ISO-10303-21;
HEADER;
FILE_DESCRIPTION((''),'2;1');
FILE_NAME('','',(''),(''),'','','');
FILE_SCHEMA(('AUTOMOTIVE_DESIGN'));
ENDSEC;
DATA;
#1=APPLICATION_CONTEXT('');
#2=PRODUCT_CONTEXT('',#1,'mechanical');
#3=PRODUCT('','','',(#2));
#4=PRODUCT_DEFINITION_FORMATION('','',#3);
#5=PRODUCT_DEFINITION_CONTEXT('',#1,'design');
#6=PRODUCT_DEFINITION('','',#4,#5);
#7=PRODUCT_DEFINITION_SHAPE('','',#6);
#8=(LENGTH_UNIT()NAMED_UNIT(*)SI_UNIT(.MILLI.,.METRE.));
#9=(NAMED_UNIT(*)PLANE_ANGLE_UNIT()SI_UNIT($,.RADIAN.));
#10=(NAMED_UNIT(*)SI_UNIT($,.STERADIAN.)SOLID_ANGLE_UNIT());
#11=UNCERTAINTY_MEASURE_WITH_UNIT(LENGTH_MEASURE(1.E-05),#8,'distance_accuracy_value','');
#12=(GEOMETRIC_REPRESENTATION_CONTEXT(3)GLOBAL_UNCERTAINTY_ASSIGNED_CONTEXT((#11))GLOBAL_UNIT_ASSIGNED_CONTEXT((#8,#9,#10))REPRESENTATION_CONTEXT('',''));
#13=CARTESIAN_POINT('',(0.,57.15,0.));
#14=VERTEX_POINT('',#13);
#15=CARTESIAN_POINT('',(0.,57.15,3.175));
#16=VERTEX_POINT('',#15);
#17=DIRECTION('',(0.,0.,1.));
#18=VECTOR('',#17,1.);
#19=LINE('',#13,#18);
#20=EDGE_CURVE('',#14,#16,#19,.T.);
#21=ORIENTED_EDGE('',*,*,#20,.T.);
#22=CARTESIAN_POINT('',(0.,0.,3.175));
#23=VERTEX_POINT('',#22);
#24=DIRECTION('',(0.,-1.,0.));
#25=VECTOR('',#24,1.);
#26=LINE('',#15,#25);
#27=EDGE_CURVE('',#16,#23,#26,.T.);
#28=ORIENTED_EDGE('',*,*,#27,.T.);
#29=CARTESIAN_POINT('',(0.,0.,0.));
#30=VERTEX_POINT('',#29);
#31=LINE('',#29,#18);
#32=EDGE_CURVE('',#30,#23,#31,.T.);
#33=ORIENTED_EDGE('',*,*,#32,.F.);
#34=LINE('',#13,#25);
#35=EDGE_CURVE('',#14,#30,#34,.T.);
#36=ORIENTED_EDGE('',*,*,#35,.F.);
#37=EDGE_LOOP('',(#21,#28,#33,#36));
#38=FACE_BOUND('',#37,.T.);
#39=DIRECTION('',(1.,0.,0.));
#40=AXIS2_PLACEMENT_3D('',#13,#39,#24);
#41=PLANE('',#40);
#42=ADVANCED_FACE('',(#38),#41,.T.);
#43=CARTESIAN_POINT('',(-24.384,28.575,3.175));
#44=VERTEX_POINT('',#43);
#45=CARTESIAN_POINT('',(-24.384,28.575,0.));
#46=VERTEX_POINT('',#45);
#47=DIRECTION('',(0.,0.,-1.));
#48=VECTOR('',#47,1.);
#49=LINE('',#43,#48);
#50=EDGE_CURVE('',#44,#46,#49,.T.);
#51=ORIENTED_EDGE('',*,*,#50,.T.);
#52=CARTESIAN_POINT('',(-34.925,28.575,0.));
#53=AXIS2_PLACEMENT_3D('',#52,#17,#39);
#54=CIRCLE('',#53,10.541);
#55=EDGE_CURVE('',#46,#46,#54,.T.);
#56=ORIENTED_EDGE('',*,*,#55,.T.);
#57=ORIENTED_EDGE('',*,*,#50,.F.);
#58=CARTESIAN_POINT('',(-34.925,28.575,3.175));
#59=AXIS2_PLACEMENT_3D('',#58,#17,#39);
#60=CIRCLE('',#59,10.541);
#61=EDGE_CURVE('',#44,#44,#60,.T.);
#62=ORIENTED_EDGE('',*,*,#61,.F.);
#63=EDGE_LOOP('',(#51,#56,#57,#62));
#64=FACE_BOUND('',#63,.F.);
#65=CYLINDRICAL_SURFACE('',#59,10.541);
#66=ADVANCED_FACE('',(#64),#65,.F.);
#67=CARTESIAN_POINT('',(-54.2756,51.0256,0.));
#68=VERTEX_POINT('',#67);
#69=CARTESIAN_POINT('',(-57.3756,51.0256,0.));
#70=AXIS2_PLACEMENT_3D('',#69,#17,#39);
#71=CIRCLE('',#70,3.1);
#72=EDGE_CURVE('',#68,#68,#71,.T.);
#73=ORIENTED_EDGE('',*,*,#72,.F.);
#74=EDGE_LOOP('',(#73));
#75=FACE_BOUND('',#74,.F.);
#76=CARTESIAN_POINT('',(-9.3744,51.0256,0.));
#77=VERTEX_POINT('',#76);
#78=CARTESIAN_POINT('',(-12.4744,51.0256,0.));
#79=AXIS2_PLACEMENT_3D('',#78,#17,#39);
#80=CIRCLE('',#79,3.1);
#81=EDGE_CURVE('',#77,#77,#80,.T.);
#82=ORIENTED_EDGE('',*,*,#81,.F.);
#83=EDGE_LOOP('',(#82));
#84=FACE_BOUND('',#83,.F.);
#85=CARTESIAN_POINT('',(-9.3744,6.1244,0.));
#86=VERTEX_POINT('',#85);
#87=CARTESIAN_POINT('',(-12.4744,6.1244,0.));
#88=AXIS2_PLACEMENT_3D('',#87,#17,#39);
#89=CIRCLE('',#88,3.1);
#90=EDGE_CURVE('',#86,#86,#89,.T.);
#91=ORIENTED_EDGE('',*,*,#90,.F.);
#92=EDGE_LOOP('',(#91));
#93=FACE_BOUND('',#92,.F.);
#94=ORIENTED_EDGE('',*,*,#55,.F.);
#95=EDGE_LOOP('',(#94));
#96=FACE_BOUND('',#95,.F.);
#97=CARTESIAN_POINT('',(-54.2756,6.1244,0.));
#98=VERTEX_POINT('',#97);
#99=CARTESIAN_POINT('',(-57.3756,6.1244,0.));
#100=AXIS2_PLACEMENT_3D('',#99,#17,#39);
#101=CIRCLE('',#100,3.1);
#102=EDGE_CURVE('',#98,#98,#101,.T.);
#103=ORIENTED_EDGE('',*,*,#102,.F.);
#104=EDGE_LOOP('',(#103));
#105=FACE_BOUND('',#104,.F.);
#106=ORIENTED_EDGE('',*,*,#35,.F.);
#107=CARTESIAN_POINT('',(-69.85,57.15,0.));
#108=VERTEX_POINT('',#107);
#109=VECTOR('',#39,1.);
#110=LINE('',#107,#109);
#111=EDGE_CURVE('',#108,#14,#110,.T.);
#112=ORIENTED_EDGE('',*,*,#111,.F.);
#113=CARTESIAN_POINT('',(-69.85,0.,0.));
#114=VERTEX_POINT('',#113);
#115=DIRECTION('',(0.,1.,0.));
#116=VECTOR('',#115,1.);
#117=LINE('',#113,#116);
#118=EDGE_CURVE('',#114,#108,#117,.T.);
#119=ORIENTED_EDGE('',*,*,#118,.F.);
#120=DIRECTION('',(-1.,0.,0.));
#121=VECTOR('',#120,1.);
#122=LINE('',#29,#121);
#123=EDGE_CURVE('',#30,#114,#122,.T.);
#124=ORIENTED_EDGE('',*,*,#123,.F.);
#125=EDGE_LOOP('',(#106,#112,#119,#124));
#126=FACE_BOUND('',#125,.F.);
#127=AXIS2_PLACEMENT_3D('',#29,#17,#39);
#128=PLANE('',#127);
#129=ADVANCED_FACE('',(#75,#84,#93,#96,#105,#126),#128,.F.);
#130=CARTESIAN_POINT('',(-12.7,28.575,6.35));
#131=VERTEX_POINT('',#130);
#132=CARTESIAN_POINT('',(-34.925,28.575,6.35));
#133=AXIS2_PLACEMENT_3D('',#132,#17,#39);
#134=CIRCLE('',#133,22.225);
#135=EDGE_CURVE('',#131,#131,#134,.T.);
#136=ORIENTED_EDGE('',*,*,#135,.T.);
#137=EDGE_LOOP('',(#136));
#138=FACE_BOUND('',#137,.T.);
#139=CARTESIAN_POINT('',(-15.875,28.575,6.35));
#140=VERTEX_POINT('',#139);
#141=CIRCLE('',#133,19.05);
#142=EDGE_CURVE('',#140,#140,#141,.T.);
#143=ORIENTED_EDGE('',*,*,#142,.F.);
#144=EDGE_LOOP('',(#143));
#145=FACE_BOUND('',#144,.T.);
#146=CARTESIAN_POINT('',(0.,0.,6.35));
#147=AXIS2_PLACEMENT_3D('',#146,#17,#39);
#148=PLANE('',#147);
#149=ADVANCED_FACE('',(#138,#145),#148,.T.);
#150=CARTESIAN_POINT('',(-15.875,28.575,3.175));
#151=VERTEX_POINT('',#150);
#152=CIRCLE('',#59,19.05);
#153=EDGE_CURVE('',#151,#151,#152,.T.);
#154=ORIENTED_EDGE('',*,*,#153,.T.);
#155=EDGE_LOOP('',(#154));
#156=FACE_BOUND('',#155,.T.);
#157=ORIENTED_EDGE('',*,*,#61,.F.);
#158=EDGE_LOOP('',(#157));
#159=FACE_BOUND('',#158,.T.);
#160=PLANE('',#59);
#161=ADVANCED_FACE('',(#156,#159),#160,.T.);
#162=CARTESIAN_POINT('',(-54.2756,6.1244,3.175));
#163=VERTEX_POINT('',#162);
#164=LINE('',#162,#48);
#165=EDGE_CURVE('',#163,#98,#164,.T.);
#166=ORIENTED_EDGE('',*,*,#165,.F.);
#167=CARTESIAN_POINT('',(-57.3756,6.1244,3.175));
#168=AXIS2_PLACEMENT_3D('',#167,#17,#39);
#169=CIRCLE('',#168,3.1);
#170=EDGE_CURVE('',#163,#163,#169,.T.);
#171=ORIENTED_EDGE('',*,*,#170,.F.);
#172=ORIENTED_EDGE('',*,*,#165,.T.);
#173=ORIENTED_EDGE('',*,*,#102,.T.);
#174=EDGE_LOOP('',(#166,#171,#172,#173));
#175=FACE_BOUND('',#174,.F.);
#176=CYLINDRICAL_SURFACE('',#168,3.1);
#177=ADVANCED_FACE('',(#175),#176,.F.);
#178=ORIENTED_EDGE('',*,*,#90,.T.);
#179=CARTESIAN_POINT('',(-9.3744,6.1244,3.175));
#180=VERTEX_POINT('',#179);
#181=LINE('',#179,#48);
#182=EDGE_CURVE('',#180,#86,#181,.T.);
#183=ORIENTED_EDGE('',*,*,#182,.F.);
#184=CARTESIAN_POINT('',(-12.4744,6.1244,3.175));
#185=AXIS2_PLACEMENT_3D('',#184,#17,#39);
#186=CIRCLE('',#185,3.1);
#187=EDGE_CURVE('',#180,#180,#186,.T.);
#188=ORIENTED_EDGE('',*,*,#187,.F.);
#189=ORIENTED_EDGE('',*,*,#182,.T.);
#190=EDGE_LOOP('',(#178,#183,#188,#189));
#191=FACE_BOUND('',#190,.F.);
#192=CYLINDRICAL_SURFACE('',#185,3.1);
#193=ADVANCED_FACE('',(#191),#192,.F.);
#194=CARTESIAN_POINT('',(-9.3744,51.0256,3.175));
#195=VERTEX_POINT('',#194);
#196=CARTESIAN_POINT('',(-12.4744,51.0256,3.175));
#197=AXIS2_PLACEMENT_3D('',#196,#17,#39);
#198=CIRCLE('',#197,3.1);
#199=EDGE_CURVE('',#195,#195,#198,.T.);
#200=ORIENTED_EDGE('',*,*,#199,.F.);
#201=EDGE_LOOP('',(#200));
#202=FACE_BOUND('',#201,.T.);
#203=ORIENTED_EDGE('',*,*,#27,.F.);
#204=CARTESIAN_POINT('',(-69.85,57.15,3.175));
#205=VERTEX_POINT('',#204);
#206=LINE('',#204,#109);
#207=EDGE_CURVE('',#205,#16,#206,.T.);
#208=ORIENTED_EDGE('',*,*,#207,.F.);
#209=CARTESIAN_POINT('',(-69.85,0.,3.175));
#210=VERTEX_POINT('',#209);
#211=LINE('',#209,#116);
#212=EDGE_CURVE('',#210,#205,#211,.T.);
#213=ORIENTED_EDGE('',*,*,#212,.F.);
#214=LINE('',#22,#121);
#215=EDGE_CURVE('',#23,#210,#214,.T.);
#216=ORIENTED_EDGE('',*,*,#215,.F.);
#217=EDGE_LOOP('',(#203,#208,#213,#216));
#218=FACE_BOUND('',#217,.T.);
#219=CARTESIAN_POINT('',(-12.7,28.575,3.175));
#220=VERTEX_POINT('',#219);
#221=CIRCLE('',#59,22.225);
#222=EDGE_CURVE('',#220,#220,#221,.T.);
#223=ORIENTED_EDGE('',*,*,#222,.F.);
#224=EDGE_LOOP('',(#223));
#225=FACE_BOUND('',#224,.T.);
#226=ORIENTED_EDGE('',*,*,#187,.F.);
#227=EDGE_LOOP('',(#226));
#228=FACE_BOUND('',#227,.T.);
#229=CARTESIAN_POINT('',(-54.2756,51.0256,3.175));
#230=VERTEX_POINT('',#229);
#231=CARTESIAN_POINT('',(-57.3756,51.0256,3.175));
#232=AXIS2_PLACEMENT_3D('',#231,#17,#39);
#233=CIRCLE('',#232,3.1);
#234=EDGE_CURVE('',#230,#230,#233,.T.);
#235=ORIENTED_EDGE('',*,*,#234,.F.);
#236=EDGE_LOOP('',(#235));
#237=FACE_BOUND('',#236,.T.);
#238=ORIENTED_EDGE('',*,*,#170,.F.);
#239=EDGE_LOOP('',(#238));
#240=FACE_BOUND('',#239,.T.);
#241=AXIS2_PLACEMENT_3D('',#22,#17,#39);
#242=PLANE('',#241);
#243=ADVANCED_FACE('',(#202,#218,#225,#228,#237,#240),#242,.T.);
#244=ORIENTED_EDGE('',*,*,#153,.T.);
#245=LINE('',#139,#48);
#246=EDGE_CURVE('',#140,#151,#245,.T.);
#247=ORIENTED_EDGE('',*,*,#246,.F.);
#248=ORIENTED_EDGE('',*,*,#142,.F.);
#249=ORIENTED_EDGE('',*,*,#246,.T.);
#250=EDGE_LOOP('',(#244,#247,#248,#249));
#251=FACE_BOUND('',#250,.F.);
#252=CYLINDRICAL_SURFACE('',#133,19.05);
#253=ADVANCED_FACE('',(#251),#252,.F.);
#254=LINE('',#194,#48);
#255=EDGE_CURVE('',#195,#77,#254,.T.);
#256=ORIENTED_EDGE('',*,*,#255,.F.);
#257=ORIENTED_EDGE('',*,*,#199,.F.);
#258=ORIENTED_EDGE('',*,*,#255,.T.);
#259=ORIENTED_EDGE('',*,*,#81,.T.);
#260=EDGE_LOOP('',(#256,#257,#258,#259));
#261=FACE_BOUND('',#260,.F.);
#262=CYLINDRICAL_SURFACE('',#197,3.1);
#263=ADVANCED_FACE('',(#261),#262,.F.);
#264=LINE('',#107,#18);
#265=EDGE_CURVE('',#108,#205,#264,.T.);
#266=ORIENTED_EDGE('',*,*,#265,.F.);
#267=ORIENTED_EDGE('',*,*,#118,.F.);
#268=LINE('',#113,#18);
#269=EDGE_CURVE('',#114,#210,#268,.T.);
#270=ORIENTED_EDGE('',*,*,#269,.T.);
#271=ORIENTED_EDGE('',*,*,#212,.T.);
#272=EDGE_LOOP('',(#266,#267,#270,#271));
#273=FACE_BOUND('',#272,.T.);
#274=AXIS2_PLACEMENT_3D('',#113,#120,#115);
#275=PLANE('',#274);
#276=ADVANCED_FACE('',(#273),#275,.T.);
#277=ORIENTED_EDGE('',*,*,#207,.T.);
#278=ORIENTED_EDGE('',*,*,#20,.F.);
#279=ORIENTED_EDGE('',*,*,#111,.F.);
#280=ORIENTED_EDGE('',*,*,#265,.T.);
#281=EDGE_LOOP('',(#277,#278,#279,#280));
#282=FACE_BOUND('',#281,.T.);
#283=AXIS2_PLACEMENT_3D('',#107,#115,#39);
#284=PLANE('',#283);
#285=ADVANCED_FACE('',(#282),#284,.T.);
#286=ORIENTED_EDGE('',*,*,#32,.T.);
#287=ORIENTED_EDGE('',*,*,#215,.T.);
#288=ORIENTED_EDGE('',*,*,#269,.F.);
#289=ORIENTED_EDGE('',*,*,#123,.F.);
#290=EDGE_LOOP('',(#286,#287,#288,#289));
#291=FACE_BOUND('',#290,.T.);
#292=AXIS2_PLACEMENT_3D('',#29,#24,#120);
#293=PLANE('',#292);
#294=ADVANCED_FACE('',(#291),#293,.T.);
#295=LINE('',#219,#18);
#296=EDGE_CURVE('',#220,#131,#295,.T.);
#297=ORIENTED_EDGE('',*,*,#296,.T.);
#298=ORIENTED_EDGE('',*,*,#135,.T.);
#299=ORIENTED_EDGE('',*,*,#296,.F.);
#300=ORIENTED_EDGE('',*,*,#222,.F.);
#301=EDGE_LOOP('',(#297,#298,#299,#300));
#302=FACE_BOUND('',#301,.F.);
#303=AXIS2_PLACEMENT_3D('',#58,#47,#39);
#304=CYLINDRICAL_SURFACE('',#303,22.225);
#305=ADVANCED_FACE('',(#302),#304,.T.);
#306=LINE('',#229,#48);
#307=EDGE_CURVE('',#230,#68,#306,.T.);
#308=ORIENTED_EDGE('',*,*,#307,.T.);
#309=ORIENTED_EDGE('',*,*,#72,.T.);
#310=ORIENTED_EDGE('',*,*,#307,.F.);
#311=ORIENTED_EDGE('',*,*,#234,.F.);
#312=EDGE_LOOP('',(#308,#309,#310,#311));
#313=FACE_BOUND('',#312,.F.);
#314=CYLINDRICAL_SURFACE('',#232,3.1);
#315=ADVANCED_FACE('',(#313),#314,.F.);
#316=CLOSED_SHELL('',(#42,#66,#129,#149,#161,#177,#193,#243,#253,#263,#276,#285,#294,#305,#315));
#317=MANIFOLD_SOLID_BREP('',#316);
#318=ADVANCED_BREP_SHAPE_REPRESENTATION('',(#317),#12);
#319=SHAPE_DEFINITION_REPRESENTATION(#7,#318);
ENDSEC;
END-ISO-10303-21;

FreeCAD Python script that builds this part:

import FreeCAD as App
import Part
import Sketcher

V = App.Vector
Q = App.Units.Quantity


def add_polygon(sketch, points):
    """Adds a closed chain of lines whose ends are joined by coincident constraints."""
    first, n = sketch.GeometryCount, len(points)
    for a, b in zip(points, points[1:] + points[:1]):
        sketch.addGeometry(Part.LineSegment(App.Vector(*a, 0), App.Vector(*b, 0)), False)
    for i in range(n):
        sketch.addConstraint(Sketcher.Constraint("Coincident", first + i, 2, first + (i + 1) % n, 1))

doc = App.newDocument("Part")
body = doc.addObject("PartDesign::Body", "Body")

# Sketch on XY plane
sketch1 = body.newObject("Sketcher::SketchObject", "Sketch")
sketch1.AttachmentSupport = (doc.getObject("XY_Plane"), [""])
sketch1.MapMode = "FlatFace"
add_polygon(sketch1, [(-70, 0), (0, 0), (0, 57), (-70, 57)])  # lines 0-3
sketch1.addConstraint([
    Sketcher.Constraint("Horizontal", 0),
    Sketcher.Constraint("Vertical", 1),
    Sketcher.Constraint("Horizontal", 2),
    Sketcher.Constraint("Vertical", 3),
    Sketcher.Constraint("Coincident", 0, 2, -1, 1),
    Sketcher.Constraint("DistanceX", 0, 1, 0, 2, Q("2.75 in")),
    Sketcher.Constraint("DistanceY", 1, 1, 1, 2, Q("2.25 in")),
])
pad1 = body.newObject("PartDesign::Pad", "Pad")
pad1.Profile = sketch1
pad1.Length = Q("0.125 in")

# Sketch on XY plane
sketch2 = body.newObject("Sketcher::SketchObject", "Sketch001")
sketch2.AttachmentSupport = (doc.getObject("XY_Plane"), [""])
sketch2.MapMode = "FlatFace"
sketch2.AttachmentOffset = App.Placement(V(0, 0, 0.125 * 25.4), App.Rotation())
sketch2.addGeometry(Part.Circle(V(-35, 29, 0), V(0, 0, 1), 22), False)
sketch2.addConstraint([
    Sketcher.Constraint("Diameter", 0, Q("1.75 in")),
    Sketcher.Constraint("DistanceX", 0, 3, -1, 1, Q("1.375 in")),
    Sketcher.Constraint("DistanceY", -1, 1, 0, 3, Q("1.125 in")),
])
pad2 = body.newObject("PartDesign::Pad", "Pad001")
pad2.Profile = sketch2
pad2.Length = Q("0.125 in")

# Sketch on XY plane
sketch3 = body.newObject("Sketcher::SketchObject", "Sketch002")
sketch3.AttachmentSupport = (doc.getObject("XY_Plane"), [""])
sketch3.MapMode = "FlatFace"
sketch3.AttachmentOffset = App.Placement(V(0, 0, 0.125 * 25.4), App.Rotation())
sketch3.addGeometry([
    Part.Circle(V(-12.5, 6.1, 0), V(0, 0, 1), 3.1),
    Part.Circle(V(-12.5, 51, 0), V(0, 0, 1), 3.1),
    Part.Circle(V(-57.4, 51, 0), V(0, 0, 1), 3.1),
    Part.Circle(V(-57.4, 6.1, 0), V(0, 0, 1), 3.1),
], False)
sketch3.addConstraint([
    Sketcher.Constraint("Equal", 0, 1),
    Sketcher.Constraint("Equal", 1, 2),
    Sketcher.Constraint("Equal", 2, 3),
    Sketcher.Constraint("Horizontal", 1, 3, 2, 3),
    Sketcher.Constraint("Horizontal", 0, 3, 3, 3),
    Sketcher.Constraint("Vertical", 0, 3, 1, 3),
    Sketcher.Constraint("Vertical", 2, 3, 3, 3),
    Sketcher.Constraint("Diameter", 0, Q("0.2441 in")),
    Sketcher.Constraint("DistanceX", 0, 3, -1, 1, 12.4744),
    Sketcher.Constraint("DistanceY", -1, 1, 0, 3, 6.1244),
    Sketcher.Constraint("DistanceY", -1, 1, 1, 3, 51.0256),
    Sketcher.Constraint("DistanceX", 2, 3, -1, 1, 57.3756),
])
pocket1 = body.newObject("PartDesign::Pocket", "Pocket")
pocket1.Profile = sketch3
pocket1.Length = Q("0.125 in")

# Sketch on XY plane
sketch4 = body.newObject("Sketcher::SketchObject", "Sketch003")
sketch4.AttachmentSupport = (doc.getObject("XY_Plane"), [""])
sketch4.MapMode = "FlatFace"
sketch4.AttachmentOffset = App.Placement(V(0, 0, 0.25 * 25.4), App.Rotation())
sketch4.addGeometry(Part.Circle(V(-35, 29, 0), V(0, 0, 1), 19), False)
sketch4.addConstraint([
    Sketcher.Constraint("Diameter", 0, Q("1.5 in")),
    Sketcher.Constraint("DistanceX", 0, 3, -1, 1, Q("1.375 in")),
    Sketcher.Constraint("DistanceY", -1, 1, 0, 3, Q("1.125 in")),
])
pocket2 = body.newObject("PartDesign::Pocket", "Pocket001")
pocket2.Profile = sketch4
pocket2.Length = Q("0.125 in")

# Sketch on XY plane
sketch5 = body.newObject("Sketcher::SketchObject", "Sketch004")
sketch5.AttachmentSupport = (doc.getObject("XY_Plane"), [""])
sketch5.MapMode = "FlatFace"
sketch5.AttachmentOffset = App.Placement(V(0, 0, 0.125 * 25.4), App.Rotation())
sketch5.addGeometry(Part.Circle(V(-35, 29, 0), V(0, 0, 1), 11), False)
sketch5.addConstraint([
    Sketcher.Constraint("Diameter", 0, Q("0.83 in")),
    Sketcher.Constraint("DistanceX", 0, 3, -1, 1, Q("1.375 in")),
    Sketcher.Constraint("DistanceY", -1, 1, 0, 3, Q("1.125 in")),
])
pocket3 = body.newObject("PartDesign::Pocket", "Pocket002")
pocket3.Profile = sketch5
pocket3.Length = Q("0.125 in")

doc.recompute()
